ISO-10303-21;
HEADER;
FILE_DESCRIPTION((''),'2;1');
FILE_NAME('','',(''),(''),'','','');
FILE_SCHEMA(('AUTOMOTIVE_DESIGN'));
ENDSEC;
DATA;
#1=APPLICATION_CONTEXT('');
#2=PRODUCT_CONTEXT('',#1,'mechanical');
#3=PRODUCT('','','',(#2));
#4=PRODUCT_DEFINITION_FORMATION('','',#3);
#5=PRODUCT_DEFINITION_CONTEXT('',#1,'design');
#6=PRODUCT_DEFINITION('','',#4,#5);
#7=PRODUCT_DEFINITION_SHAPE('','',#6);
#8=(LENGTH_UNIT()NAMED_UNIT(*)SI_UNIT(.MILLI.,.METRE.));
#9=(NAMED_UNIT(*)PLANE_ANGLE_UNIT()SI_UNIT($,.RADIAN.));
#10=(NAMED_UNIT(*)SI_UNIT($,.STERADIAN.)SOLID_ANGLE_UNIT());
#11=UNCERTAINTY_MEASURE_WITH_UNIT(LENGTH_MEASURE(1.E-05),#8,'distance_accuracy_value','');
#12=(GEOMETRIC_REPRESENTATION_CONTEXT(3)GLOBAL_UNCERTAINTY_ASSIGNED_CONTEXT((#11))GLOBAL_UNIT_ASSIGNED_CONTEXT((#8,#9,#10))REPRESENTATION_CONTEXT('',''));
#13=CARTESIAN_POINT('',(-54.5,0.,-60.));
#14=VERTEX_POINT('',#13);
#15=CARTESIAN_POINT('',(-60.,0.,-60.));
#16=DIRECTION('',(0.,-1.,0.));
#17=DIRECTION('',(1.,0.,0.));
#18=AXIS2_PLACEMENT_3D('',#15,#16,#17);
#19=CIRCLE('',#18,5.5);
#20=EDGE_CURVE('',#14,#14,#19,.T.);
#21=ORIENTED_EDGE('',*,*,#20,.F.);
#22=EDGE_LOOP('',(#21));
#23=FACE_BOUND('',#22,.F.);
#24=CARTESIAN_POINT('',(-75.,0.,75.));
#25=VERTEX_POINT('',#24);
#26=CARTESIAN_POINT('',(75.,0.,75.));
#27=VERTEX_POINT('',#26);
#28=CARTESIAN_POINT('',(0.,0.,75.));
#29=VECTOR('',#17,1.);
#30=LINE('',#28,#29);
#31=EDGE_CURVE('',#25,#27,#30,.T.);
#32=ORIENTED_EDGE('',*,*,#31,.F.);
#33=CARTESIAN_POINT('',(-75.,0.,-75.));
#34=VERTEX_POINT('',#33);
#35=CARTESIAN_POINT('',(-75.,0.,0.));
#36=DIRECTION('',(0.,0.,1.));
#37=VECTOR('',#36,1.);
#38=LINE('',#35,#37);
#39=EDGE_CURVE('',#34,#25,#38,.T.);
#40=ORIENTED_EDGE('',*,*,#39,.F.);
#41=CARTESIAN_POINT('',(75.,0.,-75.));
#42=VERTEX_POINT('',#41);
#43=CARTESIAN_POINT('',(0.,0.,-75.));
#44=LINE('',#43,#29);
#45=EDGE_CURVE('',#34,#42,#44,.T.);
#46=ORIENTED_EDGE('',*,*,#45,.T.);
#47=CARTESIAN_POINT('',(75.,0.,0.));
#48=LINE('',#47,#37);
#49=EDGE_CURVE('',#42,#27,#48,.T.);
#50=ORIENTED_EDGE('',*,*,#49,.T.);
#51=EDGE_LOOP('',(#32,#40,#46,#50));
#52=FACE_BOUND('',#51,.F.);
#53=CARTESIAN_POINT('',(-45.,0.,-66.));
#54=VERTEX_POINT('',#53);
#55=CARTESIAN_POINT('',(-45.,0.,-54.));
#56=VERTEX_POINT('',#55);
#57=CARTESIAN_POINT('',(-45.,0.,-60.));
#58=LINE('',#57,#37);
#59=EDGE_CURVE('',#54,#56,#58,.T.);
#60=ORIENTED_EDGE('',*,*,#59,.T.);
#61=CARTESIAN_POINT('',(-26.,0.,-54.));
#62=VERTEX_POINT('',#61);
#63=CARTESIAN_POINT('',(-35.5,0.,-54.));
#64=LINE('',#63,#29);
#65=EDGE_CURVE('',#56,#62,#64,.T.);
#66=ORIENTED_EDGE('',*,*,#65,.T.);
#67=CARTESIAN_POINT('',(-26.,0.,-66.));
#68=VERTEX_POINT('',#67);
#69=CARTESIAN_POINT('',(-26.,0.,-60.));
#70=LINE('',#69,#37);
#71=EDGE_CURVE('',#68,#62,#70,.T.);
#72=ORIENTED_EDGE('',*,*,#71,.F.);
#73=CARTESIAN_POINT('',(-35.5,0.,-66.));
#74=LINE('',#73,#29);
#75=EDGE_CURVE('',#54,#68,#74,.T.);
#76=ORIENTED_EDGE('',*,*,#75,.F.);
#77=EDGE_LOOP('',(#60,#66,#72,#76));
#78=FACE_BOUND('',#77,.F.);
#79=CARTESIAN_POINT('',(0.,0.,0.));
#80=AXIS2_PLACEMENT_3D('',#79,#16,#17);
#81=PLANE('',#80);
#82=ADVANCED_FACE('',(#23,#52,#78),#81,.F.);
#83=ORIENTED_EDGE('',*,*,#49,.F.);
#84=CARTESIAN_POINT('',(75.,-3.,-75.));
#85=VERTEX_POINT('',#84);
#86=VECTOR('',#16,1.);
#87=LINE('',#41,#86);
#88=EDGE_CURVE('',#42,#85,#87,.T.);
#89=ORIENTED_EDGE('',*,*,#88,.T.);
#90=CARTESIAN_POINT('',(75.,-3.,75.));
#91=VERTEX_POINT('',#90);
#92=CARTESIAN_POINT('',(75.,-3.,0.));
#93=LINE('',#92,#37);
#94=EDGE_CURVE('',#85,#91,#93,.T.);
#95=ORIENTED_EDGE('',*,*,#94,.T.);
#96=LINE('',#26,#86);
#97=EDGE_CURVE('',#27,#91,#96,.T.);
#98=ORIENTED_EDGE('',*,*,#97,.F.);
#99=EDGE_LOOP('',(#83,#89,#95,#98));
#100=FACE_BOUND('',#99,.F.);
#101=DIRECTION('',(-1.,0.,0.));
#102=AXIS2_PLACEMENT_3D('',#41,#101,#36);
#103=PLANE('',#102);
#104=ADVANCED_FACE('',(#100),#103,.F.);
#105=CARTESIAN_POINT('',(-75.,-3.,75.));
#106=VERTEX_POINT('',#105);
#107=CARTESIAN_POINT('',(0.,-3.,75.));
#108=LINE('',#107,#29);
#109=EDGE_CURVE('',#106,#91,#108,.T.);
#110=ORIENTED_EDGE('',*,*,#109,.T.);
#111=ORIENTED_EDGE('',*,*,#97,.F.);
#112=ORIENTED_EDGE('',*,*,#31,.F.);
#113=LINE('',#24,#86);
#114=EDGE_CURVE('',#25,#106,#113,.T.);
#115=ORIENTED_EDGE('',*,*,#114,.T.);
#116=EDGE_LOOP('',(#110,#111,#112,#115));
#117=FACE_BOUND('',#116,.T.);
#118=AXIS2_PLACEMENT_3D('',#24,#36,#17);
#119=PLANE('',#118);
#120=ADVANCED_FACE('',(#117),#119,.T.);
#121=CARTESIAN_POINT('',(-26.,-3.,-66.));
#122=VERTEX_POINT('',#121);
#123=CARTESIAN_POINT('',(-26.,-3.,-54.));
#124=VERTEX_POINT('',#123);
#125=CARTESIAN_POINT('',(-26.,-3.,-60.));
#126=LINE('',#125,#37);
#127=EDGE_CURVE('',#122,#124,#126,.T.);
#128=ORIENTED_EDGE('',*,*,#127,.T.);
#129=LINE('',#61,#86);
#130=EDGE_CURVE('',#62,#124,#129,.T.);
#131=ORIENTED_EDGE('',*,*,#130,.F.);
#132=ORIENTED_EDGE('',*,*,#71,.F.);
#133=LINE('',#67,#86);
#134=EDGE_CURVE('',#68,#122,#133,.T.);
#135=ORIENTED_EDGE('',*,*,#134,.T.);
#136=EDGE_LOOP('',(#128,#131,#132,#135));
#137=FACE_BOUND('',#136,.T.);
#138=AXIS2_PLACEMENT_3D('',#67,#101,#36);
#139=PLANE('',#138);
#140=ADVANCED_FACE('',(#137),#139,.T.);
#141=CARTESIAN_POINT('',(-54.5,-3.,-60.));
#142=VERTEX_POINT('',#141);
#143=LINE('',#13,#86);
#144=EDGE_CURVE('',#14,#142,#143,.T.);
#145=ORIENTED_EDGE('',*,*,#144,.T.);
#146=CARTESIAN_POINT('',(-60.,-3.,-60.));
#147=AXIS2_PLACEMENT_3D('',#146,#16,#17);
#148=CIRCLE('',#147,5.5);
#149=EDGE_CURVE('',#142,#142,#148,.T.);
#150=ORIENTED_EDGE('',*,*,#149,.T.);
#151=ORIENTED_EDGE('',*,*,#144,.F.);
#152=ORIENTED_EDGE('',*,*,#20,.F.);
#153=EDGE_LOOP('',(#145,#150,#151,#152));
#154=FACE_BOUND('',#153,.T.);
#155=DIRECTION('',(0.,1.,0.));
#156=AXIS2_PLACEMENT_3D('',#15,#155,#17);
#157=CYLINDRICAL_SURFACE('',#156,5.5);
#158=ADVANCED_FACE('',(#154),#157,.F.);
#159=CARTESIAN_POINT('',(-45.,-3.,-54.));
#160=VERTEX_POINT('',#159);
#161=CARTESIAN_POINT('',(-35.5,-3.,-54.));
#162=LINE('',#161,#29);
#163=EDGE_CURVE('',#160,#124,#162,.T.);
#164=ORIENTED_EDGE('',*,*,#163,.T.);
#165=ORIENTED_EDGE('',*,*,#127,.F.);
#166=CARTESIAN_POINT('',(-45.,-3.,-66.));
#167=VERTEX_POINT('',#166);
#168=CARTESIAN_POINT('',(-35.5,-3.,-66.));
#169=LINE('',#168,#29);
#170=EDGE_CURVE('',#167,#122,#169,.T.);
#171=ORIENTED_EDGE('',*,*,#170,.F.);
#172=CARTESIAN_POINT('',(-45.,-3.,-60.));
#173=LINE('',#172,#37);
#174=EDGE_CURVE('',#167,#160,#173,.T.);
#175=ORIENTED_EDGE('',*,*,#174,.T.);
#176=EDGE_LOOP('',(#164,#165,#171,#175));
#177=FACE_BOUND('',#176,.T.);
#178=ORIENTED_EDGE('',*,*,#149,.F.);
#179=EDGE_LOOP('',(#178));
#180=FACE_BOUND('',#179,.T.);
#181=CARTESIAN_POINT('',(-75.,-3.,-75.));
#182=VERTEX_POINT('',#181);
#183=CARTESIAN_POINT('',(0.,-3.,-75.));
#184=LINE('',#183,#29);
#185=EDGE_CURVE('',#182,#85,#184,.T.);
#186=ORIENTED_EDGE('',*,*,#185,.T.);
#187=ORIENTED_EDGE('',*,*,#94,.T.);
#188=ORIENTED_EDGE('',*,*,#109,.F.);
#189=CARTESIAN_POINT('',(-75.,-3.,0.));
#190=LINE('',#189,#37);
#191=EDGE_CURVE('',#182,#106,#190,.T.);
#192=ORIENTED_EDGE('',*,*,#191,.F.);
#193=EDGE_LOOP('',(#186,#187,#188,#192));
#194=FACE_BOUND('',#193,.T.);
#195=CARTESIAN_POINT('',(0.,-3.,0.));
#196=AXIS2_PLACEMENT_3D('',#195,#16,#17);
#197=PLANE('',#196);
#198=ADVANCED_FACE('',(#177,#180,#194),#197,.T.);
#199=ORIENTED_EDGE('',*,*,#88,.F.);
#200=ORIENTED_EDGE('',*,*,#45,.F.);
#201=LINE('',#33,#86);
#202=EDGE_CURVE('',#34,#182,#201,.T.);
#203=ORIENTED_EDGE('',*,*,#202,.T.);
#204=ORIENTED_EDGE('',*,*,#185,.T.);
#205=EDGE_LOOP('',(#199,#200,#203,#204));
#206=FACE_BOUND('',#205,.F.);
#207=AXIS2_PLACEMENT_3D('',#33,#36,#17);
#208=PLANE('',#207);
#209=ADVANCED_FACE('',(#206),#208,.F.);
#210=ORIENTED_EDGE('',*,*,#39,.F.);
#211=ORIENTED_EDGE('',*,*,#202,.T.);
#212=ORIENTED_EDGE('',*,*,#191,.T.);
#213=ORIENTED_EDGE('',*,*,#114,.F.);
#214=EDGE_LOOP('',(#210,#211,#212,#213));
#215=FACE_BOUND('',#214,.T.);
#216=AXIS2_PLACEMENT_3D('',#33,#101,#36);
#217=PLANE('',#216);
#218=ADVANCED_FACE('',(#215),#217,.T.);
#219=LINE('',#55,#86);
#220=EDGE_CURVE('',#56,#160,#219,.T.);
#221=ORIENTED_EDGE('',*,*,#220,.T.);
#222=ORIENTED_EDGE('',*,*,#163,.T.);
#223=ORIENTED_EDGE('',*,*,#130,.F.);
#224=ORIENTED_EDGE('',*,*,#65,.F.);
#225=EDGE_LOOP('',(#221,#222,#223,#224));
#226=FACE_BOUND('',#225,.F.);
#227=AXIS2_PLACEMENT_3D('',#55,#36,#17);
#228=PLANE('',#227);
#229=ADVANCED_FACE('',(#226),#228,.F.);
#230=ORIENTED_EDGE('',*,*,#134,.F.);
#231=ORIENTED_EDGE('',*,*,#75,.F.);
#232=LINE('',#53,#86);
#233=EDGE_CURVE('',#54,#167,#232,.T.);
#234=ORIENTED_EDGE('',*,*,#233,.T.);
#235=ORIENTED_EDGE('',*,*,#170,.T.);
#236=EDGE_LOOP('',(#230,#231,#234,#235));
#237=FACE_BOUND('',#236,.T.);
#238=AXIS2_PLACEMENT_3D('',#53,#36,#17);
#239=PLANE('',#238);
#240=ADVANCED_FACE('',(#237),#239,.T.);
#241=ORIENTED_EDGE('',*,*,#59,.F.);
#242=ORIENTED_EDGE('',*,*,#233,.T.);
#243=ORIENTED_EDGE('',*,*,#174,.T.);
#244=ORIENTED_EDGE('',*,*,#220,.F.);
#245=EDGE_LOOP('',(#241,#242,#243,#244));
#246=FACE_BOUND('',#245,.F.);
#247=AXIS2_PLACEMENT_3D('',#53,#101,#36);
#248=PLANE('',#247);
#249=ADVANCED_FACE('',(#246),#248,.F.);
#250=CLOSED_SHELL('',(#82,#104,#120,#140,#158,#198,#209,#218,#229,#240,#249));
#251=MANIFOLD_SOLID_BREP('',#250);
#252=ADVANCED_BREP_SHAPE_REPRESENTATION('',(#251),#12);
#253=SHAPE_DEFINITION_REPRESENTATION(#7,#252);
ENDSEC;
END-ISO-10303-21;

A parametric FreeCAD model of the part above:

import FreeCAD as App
import Part
import Sketcher

V = App.Vector
Q = App.Units.Quantity


def add_polygon(sketch, points):
    """Adds a closed chain of lines whose ends are joined by coincident constraints."""
    first, n = sketch.GeometryCount, len(points)
    for a, b in zip(points, points[1:] + points[:1]):
        sketch.addGeometry(Part.LineSegment(App.Vector(*a, 0), App.Vector(*b, 0)), False)
    for i in range(n):
        sketch.addConstraint(Sketcher.Constraint("Coincident", first + i, 2, first + (i + 1) % n, 1))

doc = App.newDocument("Part")
body = doc.addObject("PartDesign::Body", "Body")

sketch1 = body.newObject("Sketcher::SketchObject", "Sketch")
sketch1.AttachmentSupport = (doc.getObject("XZ_Plane"), [""])
sketch1.MapMode = "FlatFace"
add_polygon(sketch1, [(-75, 75), (-75, -75), (75, -75), (75, 75)])
sketch1.addGeometry(Part.Circle(V(-60, -60, 0), V(0, 0, 1), 6), False)
add_polygon(sketch1, [(-26, -66), (-45, -66), (-45, -54), (-26, -54)])
sketch1.addConstraint([
    Sketcher.Constraint("Vertical", 0),
    Sketcher.Constraint("Horizontal", 1),
    Sketcher.Constraint("Vertical", 2),
    Sketcher.Constraint("Horizontal", 3),
    Sketcher.Constraint("Horizontal", 5),
    Sketcher.Constraint("Vertical", 6),
    Sketcher.Constraint("Horizontal", 7),
    Sketcher.Constraint("Vertical", 8),
    Sketcher.Constraint("Symmetric", 0, 2, 2, 2, -1, 1),
    Sketcher.Constraint("Equal", 3, 0),
    Sketcher.Constraint("Diameter", 4, Q("11 mm")),
    Sketcher.Constraint("DistanceX", 1, 1, 1, 2, Q("150 mm")),
    Sketcher.Constraint("DistanceX", 5, 2, 5, 1, Q("19 mm")),
    Sketcher.Constraint("DistanceY", 6, 1, 6, 2, Q("12 mm")),
    Sketcher.Constraint("DistanceX", 4, 3, -1, 1, Q("60 mm")),
    Sketcher.Constraint("DistanceY", 4, 3, -1, 1, Q("60 mm")),
    Sketcher.Constraint("DistanceX", 5, 2, -1, 1, Q("45 mm")),
    Sketcher.Constraint("DistanceY", 5, 2, -1, 1, Q("66 mm")),
])
pad1 = body.newObject("PartDesign::Pad", "Pad")
pad1.Profile = sketch1
pad1.Length = 3

doc.recompute()
